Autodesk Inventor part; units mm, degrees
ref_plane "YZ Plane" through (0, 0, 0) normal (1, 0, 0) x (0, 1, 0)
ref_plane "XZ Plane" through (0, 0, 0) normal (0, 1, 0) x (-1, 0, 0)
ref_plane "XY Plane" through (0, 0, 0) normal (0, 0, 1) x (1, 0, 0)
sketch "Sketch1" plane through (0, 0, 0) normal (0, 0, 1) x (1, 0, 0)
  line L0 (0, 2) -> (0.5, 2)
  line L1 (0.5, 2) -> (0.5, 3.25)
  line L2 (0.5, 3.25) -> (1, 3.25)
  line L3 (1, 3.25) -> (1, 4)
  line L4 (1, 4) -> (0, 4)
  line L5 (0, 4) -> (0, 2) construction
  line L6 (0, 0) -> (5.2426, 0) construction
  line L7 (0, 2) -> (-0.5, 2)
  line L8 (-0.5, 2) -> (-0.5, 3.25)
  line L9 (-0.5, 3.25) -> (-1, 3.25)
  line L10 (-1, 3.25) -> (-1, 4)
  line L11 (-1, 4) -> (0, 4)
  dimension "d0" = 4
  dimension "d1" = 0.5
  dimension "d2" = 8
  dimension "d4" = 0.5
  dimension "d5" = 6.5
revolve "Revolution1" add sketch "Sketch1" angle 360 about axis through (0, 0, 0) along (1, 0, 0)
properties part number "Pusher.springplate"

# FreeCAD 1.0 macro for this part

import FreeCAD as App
import Part
import Sketcher
Q = App.Units.Quantity


def add_polygon(sketch, points):
    """Adds a closed chain of lines whose ends are joined by coincident constraints."""
    first, n = sketch.GeometryCount, len(points)
    for a, b in zip(points, points[1:] + points[:1]):
        sketch.addGeometry(Part.LineSegment(App.Vector(*a, 0), App.Vector(*b, 0)), False)
    for i in range(n):
        sketch.addConstraint(Sketcher.Constraint("Coincident", first + i, 2, first + (i + 1) % n, 1))

doc = App.newDocument("Part")
body = doc.addObject("PartDesign::Body", "Body")

sketch1 = body.newObject("Sketcher::SketchObject", "Sketch")
sketch1.AttachmentSupport = (doc.getObject("XY_Plane"), [""])
sketch1.MapMode = "FlatFace"
add_polygon(sketch1, [(-0.5, 2), (0.5, 2), (0.5, 3.2), (1, 3.2), (1, 4), (-1, 4), (-1, 3.2), (-0.5, 3.2)])
sketch1.addConstraint(Sketcher.Constraint("Horizontal", 0))
sketch1.addConstraint(Sketcher.Constraint("Vertical", 1))
sketch1.addConstraint(Sketcher.Constraint("Horizontal", 2))
sketch1.addConstraint(Sketcher.Constraint("Vertical", 3))
sketch1.addConstraint(Sketcher.Constraint("Horizontal", 4))
sketch1.addConstraint(Sketcher.Constraint("Vertical", 5))
sketch1.addConstraint(Sketcher.Constraint("Horizontal", 6))
sketch1.addConstraint(Sketcher.Constraint("Vertical", 7))
sketch1.addConstraint(Sketcher.Constraint("Symmetric", 2, 2, 5, 2, -2))
sketch1.addConstraint(Sketcher.Constraint("Equal", 2, 6))
sketch1.addConstraint(Sketcher.Constraint("DistanceX", 2, 1, 2, 2, Q("0.5 mm")))
sketch1.addConstraint(Sketcher.Constraint("DistanceY", -1, 1, 3, 2, Q("4 mm")))
sketch1.addConstraint(Sketcher.Constraint("DistanceX", -1, 1, 0, 2, Q("0.5 mm")))
sketch1.addConstraint(Sketcher.Constraint("DistanceY", -1, 1, 0, 2, Q("2 mm")))
sketch1.addConstraint(Sketcher.Constraint("DistanceY", 1, 1, 1, 2, Q("1.25 mm")))
revolution = body.newObject("PartDesign::Revolution", "Revolution")
revolution.Profile = sketch1
revolution.ReferenceAxis = (sketch1, ["H_Axis"])
revolution.Angle = 360

doc.recompute()
